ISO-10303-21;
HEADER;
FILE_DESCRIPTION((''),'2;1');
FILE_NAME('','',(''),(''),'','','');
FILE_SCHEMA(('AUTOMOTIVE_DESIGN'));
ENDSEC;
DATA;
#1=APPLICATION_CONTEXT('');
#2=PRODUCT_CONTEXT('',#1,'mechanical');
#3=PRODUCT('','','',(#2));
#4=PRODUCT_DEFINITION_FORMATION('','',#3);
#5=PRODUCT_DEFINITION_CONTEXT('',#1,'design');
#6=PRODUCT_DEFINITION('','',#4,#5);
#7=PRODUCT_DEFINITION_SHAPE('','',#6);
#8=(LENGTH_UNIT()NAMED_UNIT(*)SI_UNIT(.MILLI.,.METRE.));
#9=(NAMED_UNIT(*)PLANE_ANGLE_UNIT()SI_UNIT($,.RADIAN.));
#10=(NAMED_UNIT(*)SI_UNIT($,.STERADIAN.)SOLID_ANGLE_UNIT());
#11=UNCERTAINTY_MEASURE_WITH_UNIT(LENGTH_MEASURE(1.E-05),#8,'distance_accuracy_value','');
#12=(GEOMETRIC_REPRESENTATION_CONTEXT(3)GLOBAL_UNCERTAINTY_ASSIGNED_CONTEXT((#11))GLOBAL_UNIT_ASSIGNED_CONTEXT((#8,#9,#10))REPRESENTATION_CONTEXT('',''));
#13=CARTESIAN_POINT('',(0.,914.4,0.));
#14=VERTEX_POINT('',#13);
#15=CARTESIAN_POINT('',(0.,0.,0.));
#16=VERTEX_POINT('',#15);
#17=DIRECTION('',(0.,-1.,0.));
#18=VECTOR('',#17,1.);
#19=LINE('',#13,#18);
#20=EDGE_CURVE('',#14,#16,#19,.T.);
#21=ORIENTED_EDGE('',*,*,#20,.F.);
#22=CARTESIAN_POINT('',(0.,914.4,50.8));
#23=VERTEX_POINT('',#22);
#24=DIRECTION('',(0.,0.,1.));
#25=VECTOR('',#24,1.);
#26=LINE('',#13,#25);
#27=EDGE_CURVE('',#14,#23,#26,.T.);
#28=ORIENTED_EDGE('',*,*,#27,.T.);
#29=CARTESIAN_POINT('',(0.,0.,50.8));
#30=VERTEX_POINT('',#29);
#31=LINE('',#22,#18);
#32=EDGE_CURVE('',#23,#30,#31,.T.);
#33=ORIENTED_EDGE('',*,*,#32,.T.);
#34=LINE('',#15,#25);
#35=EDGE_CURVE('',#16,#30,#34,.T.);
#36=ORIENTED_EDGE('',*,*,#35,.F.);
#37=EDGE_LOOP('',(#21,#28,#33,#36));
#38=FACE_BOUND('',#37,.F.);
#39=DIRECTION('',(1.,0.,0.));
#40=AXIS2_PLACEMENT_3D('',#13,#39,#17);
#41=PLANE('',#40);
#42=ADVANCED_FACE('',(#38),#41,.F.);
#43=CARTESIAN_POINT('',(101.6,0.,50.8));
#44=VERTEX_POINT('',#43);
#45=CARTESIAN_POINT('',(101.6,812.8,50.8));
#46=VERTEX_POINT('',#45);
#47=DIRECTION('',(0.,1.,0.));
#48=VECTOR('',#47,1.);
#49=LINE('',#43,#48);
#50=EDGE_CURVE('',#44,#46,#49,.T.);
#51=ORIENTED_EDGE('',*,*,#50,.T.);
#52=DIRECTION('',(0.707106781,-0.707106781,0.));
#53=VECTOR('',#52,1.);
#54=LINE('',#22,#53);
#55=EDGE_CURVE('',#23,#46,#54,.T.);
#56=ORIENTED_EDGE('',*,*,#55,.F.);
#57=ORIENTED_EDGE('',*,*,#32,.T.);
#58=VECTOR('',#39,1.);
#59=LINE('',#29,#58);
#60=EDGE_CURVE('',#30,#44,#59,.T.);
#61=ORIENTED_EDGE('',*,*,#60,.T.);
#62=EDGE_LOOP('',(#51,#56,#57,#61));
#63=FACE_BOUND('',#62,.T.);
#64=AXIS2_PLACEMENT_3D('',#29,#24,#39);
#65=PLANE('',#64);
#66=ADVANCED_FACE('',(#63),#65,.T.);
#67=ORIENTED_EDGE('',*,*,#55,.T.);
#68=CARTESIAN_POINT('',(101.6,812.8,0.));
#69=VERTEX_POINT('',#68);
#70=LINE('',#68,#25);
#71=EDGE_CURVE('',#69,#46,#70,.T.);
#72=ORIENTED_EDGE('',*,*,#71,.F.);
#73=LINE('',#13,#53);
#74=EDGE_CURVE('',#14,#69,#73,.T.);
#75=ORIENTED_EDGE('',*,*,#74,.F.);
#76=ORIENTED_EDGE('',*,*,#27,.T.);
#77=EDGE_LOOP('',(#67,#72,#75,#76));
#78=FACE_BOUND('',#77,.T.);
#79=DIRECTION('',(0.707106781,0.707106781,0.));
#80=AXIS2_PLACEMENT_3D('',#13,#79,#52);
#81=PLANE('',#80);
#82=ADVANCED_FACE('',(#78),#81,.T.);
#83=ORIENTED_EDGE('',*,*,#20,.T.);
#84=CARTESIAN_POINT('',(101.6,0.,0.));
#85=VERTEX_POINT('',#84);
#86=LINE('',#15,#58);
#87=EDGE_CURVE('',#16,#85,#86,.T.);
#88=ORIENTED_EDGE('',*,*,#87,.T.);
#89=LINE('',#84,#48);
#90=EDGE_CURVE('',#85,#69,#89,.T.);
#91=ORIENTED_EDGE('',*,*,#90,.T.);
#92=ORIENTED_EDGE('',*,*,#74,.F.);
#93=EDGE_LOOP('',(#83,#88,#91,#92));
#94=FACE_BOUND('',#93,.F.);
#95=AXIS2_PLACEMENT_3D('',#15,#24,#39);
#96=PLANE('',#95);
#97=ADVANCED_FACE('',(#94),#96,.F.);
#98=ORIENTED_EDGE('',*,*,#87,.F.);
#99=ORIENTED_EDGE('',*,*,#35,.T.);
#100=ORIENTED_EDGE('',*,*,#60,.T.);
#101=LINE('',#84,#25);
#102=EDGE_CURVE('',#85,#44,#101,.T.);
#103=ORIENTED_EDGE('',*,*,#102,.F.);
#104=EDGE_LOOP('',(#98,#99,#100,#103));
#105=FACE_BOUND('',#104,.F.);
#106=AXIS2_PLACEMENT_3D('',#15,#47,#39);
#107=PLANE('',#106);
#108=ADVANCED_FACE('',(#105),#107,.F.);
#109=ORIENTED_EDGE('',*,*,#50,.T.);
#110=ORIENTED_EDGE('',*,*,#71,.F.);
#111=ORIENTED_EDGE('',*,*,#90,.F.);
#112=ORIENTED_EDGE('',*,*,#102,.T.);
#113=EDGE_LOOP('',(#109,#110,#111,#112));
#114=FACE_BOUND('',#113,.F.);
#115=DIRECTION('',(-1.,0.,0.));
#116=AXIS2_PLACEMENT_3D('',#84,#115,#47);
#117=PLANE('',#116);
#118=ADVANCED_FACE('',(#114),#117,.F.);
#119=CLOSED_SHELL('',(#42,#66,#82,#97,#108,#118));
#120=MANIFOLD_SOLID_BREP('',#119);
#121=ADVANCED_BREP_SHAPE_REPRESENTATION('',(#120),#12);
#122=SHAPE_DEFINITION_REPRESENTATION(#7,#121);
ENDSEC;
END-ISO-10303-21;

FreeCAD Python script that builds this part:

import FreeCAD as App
import Part
import Sketcher
Q = App.Units.Quantity

doc = App.newDocument("Part")
params = doc.addObject("Spreadsheet::Sheet", "Params")
for row, (alias, value) in enumerate([
    ("sketch1_height", "36 in"),
    ("sketch1_width", "4 in"),
    ("sketch1_height2", "32 in"),
    ("pad1_length", "2 in"),
], start=1):
    params.set(f"A{row}", alias)
    params.set(f"B{row}", "=" + value)
    params.setAlias(f"B{row}", alias)

body = doc.addObject("PartDesign::Body", "Body")

# Sketch on XY plane
sketch1 = body.newObject("Sketcher::SketchObject", "Sketch")
sketch1.AttachmentSupport = (doc.getObject("XY_Plane"), [""])
sketch1.MapMode = "FlatFace"
sketch1.addGeometry(Part.LineSegment(App.Vector(0, 914.4, 0), App.Vector(0, 0, 0)), False)
sketch1.addGeometry(Part.LineSegment(App.Vector(0, 0, 0), App.Vector(101.6, 0, 0)), False)
sketch1.addGeometry(Part.LineSegment(App.Vector(101.6, 0, 0), App.Vector(101.6, 812.8, 0)), False)
sketch1.addGeometry(Part.LineSegment(App.Vector(101.6, 812.8, 0), App.Vector(0, 914.4, 0)), False)
sketch1.addConstraint(Sketcher.Constraint("Coincident", 0, 2, 1, 1))
sketch1.addConstraint(Sketcher.Constraint("Coincident", 1, 2, 2, 1))
sketch1.addConstraint(Sketcher.Constraint("Coincident", 2, 2, 3, 1))
sketch1.addConstraint(Sketcher.Constraint("Coincident", 3, 2, 0, 1))
sketch1.addConstraint(Sketcher.Constraint("Vertical", 0))
sketch1.addConstraint(Sketcher.Constraint("Horizontal", 1))
sketch1.addConstraint(Sketcher.Constraint("Vertical", 2))
sketch1.addConstraint(Sketcher.Constraint("Coincident", 0, 2, -1, 1))
sketch1.addConstraint(Sketcher.Constraint("DistanceY", 0, 2, 0, 1, Q("36 in")))
sketch1.addConstraint(Sketcher.Constraint("DistanceX", 1, 1, 1, 2, Q("4 in")))
sketch1.addConstraint(Sketcher.Constraint("DistanceY", 2, 1, 2, 2, Q("32 in")))
sketch1.setExpression("Constraints[8]", "Params.sketch1_height")
sketch1.setExpression("Constraints[9]", "Params.sketch1_width")
sketch1.setExpression("Constraints[10]", "Params.sketch1_height2")
pad1 = body.newObject("PartDesign::Pad", "Pad")
pad1.Profile = sketch1
pad1.setExpression("Length", "Params.pad1_length")

doc.recompute()
